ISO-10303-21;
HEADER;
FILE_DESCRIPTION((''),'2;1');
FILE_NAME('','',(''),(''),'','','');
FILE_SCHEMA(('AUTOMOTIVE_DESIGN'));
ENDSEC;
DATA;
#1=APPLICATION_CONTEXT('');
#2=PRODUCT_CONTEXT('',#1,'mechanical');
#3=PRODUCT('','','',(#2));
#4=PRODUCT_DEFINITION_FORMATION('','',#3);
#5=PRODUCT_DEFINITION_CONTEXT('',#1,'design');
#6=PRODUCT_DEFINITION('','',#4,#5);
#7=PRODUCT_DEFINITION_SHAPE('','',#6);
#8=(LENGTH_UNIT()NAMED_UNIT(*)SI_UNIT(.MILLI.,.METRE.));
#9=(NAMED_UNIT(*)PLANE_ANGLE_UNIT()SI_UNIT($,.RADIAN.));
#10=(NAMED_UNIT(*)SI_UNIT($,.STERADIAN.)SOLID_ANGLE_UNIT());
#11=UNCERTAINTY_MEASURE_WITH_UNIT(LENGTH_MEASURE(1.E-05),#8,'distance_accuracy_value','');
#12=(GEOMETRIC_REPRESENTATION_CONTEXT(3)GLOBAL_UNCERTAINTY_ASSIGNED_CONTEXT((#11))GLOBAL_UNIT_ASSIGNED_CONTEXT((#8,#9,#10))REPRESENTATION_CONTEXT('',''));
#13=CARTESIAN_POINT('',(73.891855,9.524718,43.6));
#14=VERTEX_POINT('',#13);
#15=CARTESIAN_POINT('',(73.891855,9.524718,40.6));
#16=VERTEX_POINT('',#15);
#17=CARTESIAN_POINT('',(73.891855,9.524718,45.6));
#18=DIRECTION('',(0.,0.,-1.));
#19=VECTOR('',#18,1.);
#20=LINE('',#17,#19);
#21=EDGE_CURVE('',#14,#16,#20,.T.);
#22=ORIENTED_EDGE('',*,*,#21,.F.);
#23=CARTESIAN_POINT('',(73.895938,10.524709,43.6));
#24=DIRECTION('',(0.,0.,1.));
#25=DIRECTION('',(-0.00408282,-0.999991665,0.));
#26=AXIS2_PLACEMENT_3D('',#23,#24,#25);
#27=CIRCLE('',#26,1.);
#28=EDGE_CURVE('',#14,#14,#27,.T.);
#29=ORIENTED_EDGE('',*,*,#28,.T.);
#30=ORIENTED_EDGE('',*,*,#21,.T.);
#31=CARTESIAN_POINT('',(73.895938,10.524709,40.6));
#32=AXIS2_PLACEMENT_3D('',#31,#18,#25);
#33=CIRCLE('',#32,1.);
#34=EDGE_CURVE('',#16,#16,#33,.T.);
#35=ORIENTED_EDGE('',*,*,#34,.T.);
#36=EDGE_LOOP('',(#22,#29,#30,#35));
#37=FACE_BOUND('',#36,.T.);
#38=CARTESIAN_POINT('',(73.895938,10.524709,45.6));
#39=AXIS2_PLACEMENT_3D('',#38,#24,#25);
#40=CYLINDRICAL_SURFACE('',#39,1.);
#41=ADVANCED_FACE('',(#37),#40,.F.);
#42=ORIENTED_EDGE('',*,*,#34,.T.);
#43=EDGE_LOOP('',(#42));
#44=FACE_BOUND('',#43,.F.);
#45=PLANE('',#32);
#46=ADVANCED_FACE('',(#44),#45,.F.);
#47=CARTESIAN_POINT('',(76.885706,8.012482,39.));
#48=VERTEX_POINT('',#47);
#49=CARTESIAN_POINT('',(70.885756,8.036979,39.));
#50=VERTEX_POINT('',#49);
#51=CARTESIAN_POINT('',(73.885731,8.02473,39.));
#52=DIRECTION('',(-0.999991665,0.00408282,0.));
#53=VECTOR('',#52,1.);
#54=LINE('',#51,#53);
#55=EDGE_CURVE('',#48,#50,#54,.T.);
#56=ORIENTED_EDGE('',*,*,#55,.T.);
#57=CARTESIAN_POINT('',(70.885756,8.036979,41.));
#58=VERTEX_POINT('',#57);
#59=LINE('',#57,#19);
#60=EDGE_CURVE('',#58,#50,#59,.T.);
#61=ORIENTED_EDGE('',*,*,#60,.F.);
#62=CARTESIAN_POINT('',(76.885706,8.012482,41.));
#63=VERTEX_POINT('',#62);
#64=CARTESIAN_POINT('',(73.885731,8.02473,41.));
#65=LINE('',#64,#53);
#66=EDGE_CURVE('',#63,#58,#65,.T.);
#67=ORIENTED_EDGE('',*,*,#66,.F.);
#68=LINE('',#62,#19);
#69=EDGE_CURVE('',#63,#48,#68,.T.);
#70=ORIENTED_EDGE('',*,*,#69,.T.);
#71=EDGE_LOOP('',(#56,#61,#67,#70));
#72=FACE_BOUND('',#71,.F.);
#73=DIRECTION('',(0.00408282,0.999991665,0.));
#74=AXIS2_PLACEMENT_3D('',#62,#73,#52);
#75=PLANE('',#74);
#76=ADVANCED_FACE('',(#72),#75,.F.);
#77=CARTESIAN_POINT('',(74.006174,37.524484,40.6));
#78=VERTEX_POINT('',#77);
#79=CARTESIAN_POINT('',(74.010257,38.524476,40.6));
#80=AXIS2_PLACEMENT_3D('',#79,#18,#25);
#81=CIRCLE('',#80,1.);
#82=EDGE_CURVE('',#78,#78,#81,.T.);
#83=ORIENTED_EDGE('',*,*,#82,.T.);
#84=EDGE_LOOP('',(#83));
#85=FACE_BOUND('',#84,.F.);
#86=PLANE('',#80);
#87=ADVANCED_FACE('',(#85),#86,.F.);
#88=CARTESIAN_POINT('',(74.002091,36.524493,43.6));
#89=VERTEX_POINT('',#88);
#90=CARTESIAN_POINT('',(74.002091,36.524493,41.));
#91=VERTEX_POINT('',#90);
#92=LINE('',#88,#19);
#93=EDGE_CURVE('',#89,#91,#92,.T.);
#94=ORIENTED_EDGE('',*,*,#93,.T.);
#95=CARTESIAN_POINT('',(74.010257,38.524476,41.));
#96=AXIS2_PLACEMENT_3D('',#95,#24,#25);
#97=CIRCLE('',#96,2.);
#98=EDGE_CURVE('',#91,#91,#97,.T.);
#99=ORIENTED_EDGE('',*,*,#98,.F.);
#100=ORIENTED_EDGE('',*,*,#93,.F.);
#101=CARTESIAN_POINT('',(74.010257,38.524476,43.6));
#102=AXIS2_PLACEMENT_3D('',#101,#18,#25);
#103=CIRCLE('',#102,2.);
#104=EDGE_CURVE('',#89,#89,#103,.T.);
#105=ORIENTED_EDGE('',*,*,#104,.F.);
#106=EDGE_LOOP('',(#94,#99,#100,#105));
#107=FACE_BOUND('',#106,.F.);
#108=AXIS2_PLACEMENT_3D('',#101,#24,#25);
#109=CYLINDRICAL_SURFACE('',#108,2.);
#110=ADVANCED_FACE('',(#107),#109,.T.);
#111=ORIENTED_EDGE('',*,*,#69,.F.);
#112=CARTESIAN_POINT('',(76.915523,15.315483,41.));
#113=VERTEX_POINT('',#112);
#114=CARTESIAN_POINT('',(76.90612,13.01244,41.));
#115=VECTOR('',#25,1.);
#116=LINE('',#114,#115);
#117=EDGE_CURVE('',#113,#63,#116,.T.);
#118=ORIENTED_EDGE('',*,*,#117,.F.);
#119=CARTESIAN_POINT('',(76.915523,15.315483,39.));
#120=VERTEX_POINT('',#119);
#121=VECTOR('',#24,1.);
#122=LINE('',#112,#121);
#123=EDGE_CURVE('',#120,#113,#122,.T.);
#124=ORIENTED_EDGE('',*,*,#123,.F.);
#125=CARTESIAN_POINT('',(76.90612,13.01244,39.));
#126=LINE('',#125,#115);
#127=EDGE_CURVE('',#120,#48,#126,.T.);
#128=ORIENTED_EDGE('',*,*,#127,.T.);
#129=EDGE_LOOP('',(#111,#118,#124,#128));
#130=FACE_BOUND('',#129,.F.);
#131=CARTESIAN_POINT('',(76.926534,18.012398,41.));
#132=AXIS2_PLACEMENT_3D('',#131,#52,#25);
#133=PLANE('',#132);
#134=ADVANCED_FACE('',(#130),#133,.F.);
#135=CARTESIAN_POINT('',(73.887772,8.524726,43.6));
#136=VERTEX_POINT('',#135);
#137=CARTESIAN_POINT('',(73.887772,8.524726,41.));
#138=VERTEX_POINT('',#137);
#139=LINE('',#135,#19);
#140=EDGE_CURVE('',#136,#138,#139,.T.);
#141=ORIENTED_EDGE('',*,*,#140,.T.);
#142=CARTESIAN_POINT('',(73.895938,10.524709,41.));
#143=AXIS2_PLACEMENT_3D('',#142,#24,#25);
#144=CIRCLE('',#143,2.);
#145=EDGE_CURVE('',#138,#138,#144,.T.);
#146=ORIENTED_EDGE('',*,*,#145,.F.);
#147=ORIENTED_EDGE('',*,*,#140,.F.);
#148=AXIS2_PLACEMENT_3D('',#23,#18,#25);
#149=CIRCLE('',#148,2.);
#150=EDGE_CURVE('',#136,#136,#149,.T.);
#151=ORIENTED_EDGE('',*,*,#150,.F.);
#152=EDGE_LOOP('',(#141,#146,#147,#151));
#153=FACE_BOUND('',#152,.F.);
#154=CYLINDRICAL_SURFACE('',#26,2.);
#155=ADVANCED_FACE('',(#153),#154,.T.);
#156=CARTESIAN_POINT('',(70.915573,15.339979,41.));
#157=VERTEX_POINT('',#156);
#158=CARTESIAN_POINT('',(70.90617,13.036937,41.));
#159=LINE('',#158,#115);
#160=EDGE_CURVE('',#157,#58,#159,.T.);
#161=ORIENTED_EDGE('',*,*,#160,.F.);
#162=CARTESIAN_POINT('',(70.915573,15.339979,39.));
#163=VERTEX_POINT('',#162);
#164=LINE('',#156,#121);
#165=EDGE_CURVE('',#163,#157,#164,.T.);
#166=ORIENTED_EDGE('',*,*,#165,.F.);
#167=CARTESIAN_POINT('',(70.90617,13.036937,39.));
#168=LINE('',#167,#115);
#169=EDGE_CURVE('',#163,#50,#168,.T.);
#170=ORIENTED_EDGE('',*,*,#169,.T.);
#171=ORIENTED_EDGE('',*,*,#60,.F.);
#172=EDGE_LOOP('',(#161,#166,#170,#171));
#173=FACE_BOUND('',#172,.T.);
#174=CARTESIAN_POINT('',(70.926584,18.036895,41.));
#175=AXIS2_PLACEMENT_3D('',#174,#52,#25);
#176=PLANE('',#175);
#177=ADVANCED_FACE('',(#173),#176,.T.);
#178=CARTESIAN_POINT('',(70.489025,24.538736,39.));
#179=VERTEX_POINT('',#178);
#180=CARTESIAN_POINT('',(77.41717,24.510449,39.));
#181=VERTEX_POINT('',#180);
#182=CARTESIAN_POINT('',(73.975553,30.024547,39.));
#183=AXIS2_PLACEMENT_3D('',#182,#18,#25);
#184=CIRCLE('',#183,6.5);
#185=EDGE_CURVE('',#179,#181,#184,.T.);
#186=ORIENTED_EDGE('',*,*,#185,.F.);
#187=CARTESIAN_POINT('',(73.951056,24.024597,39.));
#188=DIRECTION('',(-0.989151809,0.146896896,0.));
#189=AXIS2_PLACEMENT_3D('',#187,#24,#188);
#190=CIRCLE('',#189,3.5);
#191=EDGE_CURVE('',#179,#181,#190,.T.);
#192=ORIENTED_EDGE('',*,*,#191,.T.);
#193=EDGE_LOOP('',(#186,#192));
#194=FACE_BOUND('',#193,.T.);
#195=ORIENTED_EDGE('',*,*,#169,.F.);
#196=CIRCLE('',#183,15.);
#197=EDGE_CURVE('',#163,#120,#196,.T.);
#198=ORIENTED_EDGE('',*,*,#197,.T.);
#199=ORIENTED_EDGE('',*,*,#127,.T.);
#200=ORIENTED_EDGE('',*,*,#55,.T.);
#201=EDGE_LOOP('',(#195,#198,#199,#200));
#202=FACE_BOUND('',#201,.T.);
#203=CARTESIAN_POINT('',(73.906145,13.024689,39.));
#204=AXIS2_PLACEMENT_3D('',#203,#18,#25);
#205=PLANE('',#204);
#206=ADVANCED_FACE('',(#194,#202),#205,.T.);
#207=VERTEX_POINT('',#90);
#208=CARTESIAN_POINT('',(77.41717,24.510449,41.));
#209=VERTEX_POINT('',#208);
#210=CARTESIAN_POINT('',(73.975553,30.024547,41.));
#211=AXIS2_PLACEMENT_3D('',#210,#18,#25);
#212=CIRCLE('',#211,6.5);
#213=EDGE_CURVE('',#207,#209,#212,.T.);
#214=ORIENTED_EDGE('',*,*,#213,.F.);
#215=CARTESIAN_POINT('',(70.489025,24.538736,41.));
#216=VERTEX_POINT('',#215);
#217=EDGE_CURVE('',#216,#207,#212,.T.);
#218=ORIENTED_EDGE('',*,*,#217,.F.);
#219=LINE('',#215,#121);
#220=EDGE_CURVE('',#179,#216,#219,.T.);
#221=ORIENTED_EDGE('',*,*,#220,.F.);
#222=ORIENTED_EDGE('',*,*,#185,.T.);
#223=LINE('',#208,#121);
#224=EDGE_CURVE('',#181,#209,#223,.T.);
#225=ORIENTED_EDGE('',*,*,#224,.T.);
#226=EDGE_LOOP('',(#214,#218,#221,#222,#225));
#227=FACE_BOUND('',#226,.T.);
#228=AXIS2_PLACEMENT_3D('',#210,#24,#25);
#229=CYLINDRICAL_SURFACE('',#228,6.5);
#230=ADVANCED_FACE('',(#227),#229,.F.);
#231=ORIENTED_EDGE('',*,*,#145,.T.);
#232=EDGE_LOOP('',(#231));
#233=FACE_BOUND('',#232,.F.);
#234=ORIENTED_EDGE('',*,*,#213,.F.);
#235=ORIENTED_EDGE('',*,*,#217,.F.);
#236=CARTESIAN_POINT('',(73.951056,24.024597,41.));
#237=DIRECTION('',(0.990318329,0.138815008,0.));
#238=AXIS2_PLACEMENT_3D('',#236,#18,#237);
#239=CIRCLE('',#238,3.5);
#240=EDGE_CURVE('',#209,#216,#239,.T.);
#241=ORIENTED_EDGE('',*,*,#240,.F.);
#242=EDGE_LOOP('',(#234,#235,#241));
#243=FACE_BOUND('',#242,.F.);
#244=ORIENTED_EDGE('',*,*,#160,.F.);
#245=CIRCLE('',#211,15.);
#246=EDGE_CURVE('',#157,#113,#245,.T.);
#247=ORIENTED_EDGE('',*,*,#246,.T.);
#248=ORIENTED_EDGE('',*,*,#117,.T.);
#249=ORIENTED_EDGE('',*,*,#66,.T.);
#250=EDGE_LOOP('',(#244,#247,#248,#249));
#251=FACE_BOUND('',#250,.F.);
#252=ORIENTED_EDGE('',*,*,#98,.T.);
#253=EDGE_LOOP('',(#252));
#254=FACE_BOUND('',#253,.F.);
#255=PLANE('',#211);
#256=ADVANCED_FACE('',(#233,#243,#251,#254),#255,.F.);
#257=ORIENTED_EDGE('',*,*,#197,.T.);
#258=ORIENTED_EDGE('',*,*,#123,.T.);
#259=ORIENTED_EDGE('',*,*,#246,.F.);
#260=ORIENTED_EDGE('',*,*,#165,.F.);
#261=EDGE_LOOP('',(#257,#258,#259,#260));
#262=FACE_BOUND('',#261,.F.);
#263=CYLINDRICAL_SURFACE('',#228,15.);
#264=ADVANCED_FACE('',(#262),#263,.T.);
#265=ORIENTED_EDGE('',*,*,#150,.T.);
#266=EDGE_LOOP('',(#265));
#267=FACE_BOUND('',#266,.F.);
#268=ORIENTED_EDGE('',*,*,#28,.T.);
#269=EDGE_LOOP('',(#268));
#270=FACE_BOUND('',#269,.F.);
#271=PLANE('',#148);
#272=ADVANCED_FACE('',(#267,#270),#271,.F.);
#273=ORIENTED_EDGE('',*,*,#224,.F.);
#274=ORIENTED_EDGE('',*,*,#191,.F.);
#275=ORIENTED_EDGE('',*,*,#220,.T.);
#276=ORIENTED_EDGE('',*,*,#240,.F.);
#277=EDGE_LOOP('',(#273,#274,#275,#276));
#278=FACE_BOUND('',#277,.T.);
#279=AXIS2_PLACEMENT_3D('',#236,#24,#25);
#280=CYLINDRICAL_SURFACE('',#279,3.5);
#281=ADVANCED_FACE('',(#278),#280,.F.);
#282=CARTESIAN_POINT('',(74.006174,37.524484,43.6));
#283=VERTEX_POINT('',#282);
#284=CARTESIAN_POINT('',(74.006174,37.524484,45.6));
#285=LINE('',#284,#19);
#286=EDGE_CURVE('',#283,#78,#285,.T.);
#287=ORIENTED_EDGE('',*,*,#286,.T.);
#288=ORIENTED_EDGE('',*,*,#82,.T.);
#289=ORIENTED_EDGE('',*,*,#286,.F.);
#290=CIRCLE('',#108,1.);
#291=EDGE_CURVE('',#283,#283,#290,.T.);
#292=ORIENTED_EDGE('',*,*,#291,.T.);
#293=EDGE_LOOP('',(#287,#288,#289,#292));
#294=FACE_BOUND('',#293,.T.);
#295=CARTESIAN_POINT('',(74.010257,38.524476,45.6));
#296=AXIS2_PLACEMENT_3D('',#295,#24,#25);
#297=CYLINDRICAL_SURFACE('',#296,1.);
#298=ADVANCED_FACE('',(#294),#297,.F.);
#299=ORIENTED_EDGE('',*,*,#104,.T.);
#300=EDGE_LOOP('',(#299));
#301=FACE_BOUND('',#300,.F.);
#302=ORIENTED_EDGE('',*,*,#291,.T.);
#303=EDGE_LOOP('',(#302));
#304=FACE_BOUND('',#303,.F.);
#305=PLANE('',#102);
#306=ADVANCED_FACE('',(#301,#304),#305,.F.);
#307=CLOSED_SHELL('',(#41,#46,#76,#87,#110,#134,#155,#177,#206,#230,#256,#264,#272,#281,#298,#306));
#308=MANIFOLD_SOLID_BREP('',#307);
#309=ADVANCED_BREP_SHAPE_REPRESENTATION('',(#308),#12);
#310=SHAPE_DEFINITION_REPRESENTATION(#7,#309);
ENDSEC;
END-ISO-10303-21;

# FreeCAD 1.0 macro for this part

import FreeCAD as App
import Part
import Sketcher
Q = App.Units.Quantity


def add_polygon(sketch, points):
    """Adds a closed chain of lines whose ends are joined by coincident constraints."""
    first, n = sketch.GeometryCount, len(points)
    for a, b in zip(points, points[1:] + points[:1]):
        sketch.addGeometry(Part.LineSegment(App.Vector(*a, 0), App.Vector(*b, 0)), False)
    for i in range(n):
        sketch.addConstraint(Sketcher.Constraint("Coincident", first + i, 2, first + (i + 1) % n, 1))

doc = App.newDocument("Part")
params = doc.addObject("Spreadsheet::Sheet", "Params")
for row, (alias, value) in enumerate([
    ("sketch1_diameter", "7 mm"),
    ("pad1_length", "2 mm"),
    ("sketch2_diameter", "2 mm"),
    ("pad2_length", "5 mm"),
    ("sketch3_diameter", "2 mm"),
    ("pad3_length", "5 mm"),
    ("sketch4_diameter", "13 mm"),
    ("pad4_length", "2 mm"),
    ("sketch5_width", "10 mm"),
    ("sketch5_height", "6 mm"),
    ("pad5_length", "2 mm"),
    ("sketch6_diameter", "4 mm"),
    ("pad6_length", "3 mm"),
    ("sketch7_diameter", "4 mm"),
    ("pad7_length", "3 mm"),
    ("sketch8_diameter", "30 mm"),
    ("pad8_length", "2 mm"),
], start=1):
    params.set(f"A{row}", alias)
    params.set(f"B{row}", "=" + value)
    params.setAlias(f"B{row}", alias)

body = doc.addObject("PartDesign::Body", "Body")

# Sketch on XY plane
sketch1 = body.newObject("Sketcher::SketchObject", "Sketch")
sketch1.AttachmentSupport = (doc.getObject("XY_Plane"), [""])
sketch1.MapMode = "FlatFace"
sketch1.AttachmentOffset = App.Placement(App.Vector(0, 0, 21), App.Rotation())
sketch1.addGeometry(Part.Circle(App.Vector(12, 6, 0), App.Vector(0, 0, 1), 3.5), False)
sketch1.addConstraint(Sketcher.Constraint("Diameter", 0, Q("7 mm")))
sketch1.addConstraint(Sketcher.Constraint("DistanceX", -1, 1, 0, 3, Q("12 mm")))
sketch1.addConstraint(Sketcher.Constraint("DistanceY", -1, 1, 0, 3, Q("6 mm")))
sketch1.setExpression("Constraints[0]", "Params.sketch1_diameter")
pad1 = body.newObject("PartDesign::Pad", "Pad")
pad1.Profile = sketch1
pad1.setExpression("Length", "Params.pad1_length")
body2 = doc.addObject("PartDesign::Body", "Body001")

# Sketch on XY plane
sketch2 = body2.newObject("Sketcher::SketchObject", "Sketch001")
sketch2.AttachmentSupport = (doc.getObject("XY_Plane001"), [""])
sketch2.MapMode = "FlatFace"
sketch2.AttachmentOffset = App.Placement(App.Vector(0, 0, 16.4), App.Rotation())
sketch2.addGeometry(Part.Circle(App.Vector(-2.5, 6, 0), App.Vector(0, 0, 1), 1), False)
sketch2.addConstraint(Sketcher.Constraint("Diameter", 0, Q("2 mm")))
sketch2.addConstraint(Sketcher.Constraint("DistanceY", -1, 1, 0, 3, Q("6 mm")))
sketch2.addConstraint(Sketcher.Constraint("DistanceX", 0, 3, -1, 1, Q("2.5 mm")))
sketch2.setExpression("Constraints[0]", "Params.sketch2_diameter")
pad2 = body2.newObject("PartDesign::Pad", "Pad001")
pad2.Profile = sketch2
pad2.setExpression("Length", "Params.pad2_length")
body3 = doc.addObject("PartDesign::Body", "Body002")

# Sketch on XY plane
sketch3 = body3.newObject("Sketcher::SketchObject", "Sketch002")
sketch3.AttachmentSupport = (doc.getObject("XY_Plane002"), [""])
sketch3.MapMode = "FlatFace"
sketch3.AttachmentOffset = App.Placement(App.Vector(0, 0, 16.4), App.Rotation())
sketch3.addGeometry(Part.Circle(App.Vector(25.5, 6, 0), App.Vector(0, 0, 1), 1), False)
sketch3.addConstraint(Sketcher.Constraint("Diameter", 0, Q("2 mm")))
sketch3.addConstraint(Sketcher.Constraint("DistanceY", -1, 1, 0, 3, Q("6 mm")))
sketch3.addConstraint(Sketcher.Constraint("DistanceX", -1, 1, 0, 3, Q("25.5 mm")))
sketch3.setExpression("Constraints[0]", "Params.sketch3_diameter")
pad3 = body3.newObject("PartDesign::Pad", "Pad002")
pad3.Profile = sketch3
pad3.setExpression("Length", "Params.pad3_length")
body4 = doc.addObject("PartDesign::Body", "Body003")
body4.AllowCompound = True

# Sketch on XY plane
sketch4 = body4.newObject("Sketcher::SketchObject", "Sketch003")
sketch4.AttachmentSupport = (doc.getObject("XY_Plane003"), [""])
sketch4.MapMode = "FlatFace"
sketch4.AttachmentOffset = App.Placement(App.Vector(0, 0, 21), App.Rotation())
sketch4.addGeometry(Part.Circle(App.Vector(6, 6, 0), App.Vector(0, 0, 1), 6), False)
sketch4.addConstraint(Sketcher.Constraint("Diameter", 0, Q("13 mm")))
sketch4.addConstraint(Sketcher.Constraint("DistanceX", -1, 1, 0, 3, Q("6 mm")))
sketch4.addConstraint(Sketcher.Constraint("DistanceY", -1, 1, 0, 3, Q("6 mm")))
sketch4.setExpression("Constraints[0]", "Params.sketch4_diameter")
pad4 = body4.newObject("PartDesign::Pad", "Pad003")
pad4.Profile = sketch4
pad4.setExpression("Length", "Params.pad4_length")
doc.recompute()

boolean = body4.newObject("PartDesign::Boolean", "Boolean")
boolean.Type = "Fuse"
boolean.addObjects([body])
doc.recompute()

boolean2 = body4.newObject("PartDesign::Boolean", "Boolean001")
boolean2.Type = "Fuse"
boolean2.addObjects([body2])
doc.recompute()

boolean3 = body4.newObject("PartDesign::Boolean", "Boolean002")
boolean3.Type = "Fuse"
boolean3.addObjects([body3])
body5 = doc.addObject("PartDesign::Body", "Body004")

# Sketch on XY plane
sketch5 = body5.newObject("Sketcher::SketchObject", "Sketch004")
sketch5.AttachmentSupport = (doc.getObject("XY_Plane004"), [""])
sketch5.MapMode = "FlatFace"
sketch5.AttachmentOffset = App.Placement(App.Vector(0, 0, 21), App.Rotation())
add_polygon(sketch5, [(18, 9), (18, 3), (28, 3), (28, 9)])  # lines 0-3
sketch5.addConstraint(Sketcher.Constraint("Vertical", 0))
sketch5.addConstraint(Sketcher.Constraint("Horizontal", 1))
sketch5.addConstraint(Sketcher.Constraint("Vertical", 2))
sketch5.addConstraint(Sketcher.Constraint("Horizontal", 3))
sketch5.addConstraint(Sketcher.Constraint("DistanceX", 1, 1, 1, 2, Q("10 mm")))
sketch5.addConstraint(Sketcher.Constraint("DistanceY", 0, 2, 0, 1, Q("6 mm")))
sketch5.addConstraint(Sketcher.Constraint("DistanceX", -1, 1, 0, 2, Q("18 mm")))
sketch5.addConstraint(Sketcher.Constraint("DistanceY", -1, 1, 0, 2, Q("3 mm")))
sketch5.setExpression("Constraints[8]", "Params.sketch5_width")
sketch5.setExpression("Constraints[9]", "Params.sketch5_height")
pad5 = body5.newObject("PartDesign::Pad", "Pad004")
pad5.Profile = sketch5
pad5.setExpression("Length", "Params.pad5_length")
body6 = doc.addObject("PartDesign::Body", "Body005")

# Sketch on XY plane
sketch6 = body6.newObject("Sketcher::SketchObject", "Sketch005")
sketch6.AttachmentSupport = (doc.getObject("XY_Plane005"), [""])
sketch6.MapMode = "FlatFace"
sketch6.AttachmentOffset = App.Placement(App.Vector(0, 0, 18.4), App.Rotation())
sketch6.addGeometry(Part.Circle(App.Vector(-2.5, 6, 0), App.Vector(0, 0, 1), 2), False)
sketch6.addConstraint(Sketcher.Constraint("Diameter", 0, Q("4 mm")))
sketch6.addConstraint(Sketcher.Constraint("DistanceY", -1, 1, 0, 3, Q("6 mm")))
sketch6.addConstraint(Sketcher.Constraint("DistanceX", 0, 3, -1, 1, Q("2.5 mm")))
sketch6.setExpression("Constraints[0]", "Params.sketch6_diameter")
pad6 = body6.newObject("PartDesign::Pad", "Pad005")
pad6.Profile = sketch6
pad6.setExpression("Length", "Params.pad6_length")
body7 = doc.addObject("PartDesign::Body", "Body006")

# Sketch on XY plane
sketch7 = body7.newObject("Sketcher::SketchObject", "Sketch006")
sketch7.AttachmentSupport = (doc.getObject("XY_Plane006"), [""])
sketch7.MapMode = "FlatFace"
sketch7.AttachmentOffset = App.Placement(App.Vector(0, 0, 18.4), App.Rotation())
sketch7.addGeometry(Part.Circle(App.Vector(25.5, 6, 0), App.Vector(0, 0, 1), 2), False)
sketch7.addConstraint(Sketcher.Constraint("Diameter", 0, Q("4 mm")))
sketch7.addConstraint(Sketcher.Constraint("DistanceY", -1, 1, 0, 3, Q("6 mm")))
sketch7.addConstraint(Sketcher.Constraint("DistanceX", -1, 1, 0, 3, Q("25.5 mm")))
sketch7.setExpression("Constraints[0]", "Params.sketch7_diameter")
pad7 = body7.newObject("PartDesign::Pad", "Pad006")
pad7.Profile = sketch7
pad7.setExpression("Length", "Params.pad7_length")
body8 = doc.addObject("PartDesign::Body", "Body007")

# Sketch on XY plane
sketch8 = body8.newObject("Sketcher::SketchObject", "Sketch007")
sketch8.AttachmentSupport = (doc.getObject("XY_Plane007"), [""])
sketch8.MapMode = "FlatFace"
sketch8.AttachmentOffset = App.Placement(App.Vector(0, 0, 21), App.Rotation())
sketch8.addGeometry(Part.Circle(App.Vector(6, 6, 0), App.Vector(0, 0, 1), 15), False)
sketch8.addConstraint(Sketcher.Constraint("Diameter", 0, Q("30 mm")))
sketch8.addConstraint(Sketcher.Constraint("DistanceX", -1, 1, 0, 3, Q("6 mm")))
sketch8.addConstraint(Sketcher.Constraint("DistanceY", -1, 1, 0, 3, Q("6 mm")))
sketch8.setExpression("Constraints[0]", "Params.sketch8_diameter")
pad8 = body8.newObject("PartDesign::Pad", "Pad007")
pad8.Profile = sketch8
pad8.setExpression("Length", "Params.pad8_length")
doc.recompute()

boolean4 = body8.newObject("PartDesign::Boolean", "Boolean003")
boolean4.Type = "Fuse"
boolean4.addObjects([body5])
doc.recompute()

boolean5 = body8.newObject("PartDesign::Boolean", "Boolean004")
boolean5.Type = "Fuse"
boolean5.addObjects([body6])
doc.recompute()

boolean6 = body8.newObject("PartDesign::Boolean", "Boolean005")
boolean6.Type = "Fuse"
boolean6.addObjects([body7])
doc.recompute()

boolean7 = body8.newObject("PartDesign::Boolean", "Boolean006")
boolean7.Type = "Cut"
boolean7.addObjects([body4])
body9 = doc.addObject("PartDesign::Body", "Body008")
doc.recompute()

body8.Placement = App.Placement(App.Vector(0, 0, 0), App.Rotation(App.Vector(1, 0, 0), 180))
boolean8 = body9.newObject("PartDesign::Boolean", "Boolean007")
boolean8.Type = "Fuse"
boolean8.addObjects([body8])
body10 = doc.addObject("PartDesign::Body", "Body009")
doc.recompute()

body9.Placement = App.Placement(App.Vector(80, 36, 62), App.Rotation(App.Vector(0, 0, 1), 269.766071))
boolean9 = body10.newObject("PartDesign::Boolean", "Boolean008")
boolean9.Type = "Fuse"
boolean9.addObjects([body9])

doc.recompute()
